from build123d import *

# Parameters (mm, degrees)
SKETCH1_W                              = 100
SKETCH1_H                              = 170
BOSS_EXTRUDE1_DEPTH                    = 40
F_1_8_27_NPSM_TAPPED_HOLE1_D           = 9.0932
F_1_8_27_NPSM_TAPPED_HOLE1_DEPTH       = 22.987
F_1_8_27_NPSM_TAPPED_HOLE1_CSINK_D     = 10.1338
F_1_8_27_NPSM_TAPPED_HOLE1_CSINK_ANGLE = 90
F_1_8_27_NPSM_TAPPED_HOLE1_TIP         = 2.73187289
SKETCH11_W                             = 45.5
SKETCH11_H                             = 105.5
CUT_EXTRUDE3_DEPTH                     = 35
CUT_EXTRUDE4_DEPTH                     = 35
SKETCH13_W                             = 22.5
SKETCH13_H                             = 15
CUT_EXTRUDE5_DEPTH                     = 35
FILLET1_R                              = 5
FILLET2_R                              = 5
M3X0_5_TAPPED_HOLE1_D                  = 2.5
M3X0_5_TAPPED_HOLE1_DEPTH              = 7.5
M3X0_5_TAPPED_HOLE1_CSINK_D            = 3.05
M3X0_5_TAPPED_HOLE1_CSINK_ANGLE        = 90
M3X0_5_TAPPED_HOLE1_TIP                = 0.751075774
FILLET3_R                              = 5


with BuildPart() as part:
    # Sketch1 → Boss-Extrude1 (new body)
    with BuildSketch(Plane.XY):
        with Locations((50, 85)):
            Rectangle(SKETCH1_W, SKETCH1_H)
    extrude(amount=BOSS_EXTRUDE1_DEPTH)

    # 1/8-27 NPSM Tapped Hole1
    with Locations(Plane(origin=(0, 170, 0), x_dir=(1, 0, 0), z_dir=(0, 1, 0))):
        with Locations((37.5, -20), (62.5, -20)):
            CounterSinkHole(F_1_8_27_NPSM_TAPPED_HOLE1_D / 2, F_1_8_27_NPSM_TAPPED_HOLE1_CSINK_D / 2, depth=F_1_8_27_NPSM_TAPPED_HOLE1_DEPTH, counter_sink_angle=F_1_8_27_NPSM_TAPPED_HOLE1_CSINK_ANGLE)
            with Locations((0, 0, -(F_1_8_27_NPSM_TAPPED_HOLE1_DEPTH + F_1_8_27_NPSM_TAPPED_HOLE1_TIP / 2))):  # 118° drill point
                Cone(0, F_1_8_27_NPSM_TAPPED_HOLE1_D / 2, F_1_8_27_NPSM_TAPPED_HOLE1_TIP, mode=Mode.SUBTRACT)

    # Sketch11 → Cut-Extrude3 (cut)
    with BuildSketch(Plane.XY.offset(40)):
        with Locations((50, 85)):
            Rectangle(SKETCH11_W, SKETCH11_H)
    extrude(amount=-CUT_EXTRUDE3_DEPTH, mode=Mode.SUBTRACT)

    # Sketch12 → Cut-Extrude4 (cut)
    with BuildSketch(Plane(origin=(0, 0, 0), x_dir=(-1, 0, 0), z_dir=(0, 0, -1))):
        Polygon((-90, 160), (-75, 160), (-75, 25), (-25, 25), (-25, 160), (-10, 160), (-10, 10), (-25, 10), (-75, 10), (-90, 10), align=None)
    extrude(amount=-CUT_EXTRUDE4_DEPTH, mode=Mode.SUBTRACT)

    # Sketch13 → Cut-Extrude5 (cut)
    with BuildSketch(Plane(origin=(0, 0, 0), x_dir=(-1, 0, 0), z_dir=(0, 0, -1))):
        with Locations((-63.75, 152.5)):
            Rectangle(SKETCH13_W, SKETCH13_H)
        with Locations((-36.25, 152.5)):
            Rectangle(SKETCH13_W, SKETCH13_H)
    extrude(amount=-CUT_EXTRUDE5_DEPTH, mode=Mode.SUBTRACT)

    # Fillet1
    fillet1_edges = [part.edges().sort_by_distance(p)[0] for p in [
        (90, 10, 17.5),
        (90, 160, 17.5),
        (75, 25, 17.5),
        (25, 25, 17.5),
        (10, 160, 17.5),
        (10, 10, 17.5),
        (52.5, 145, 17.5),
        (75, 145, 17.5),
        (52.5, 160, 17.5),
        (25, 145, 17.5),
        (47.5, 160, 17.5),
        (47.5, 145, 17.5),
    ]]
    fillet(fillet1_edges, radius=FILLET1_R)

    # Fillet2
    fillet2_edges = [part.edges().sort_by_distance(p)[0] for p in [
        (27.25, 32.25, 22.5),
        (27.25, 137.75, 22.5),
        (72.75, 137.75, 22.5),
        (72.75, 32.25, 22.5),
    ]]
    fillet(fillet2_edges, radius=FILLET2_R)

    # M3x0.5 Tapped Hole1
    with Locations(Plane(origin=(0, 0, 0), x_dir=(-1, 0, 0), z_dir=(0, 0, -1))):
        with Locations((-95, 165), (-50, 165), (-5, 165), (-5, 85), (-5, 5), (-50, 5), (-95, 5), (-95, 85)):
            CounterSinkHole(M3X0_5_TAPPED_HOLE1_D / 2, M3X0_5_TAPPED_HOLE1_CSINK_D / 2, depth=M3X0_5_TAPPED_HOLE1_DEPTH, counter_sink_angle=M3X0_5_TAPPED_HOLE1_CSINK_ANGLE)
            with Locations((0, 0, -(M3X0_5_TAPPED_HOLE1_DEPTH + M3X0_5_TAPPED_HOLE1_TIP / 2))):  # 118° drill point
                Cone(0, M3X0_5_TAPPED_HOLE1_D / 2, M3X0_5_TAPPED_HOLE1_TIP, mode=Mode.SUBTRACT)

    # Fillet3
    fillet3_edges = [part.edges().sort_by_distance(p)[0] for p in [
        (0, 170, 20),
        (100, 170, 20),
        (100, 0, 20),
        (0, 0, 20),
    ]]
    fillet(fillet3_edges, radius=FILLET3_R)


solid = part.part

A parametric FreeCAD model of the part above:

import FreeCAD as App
import Part
import Sketcher
from FreeCAD import Vector


def edges_at(feature, points):
    """Names of the edges that pass closest to the given points."""
    edges = feature.Shape.Edges
    near = lambda p: min(range(len(edges)), key=lambda i: edges[i].distToShape(Part.Vertex(*p))[0])
    return sorted({f"Edge{near(p) + 1}" for p in points})

doc = App.newDocument("Part")
body = doc.addObject("PartDesign::Body", "Body")

sketch1 = doc.addObject("Sketcher::SketchObject", "Sketch")
body.addObject(sketch1)
sketch1.AttachmentSupport = (doc.XY_Plane, [""])
sketch1.MapMode = "FlatFace"
sketch1.addGeometry([
    Part.LineSegment(Vector(0, 170, 0), Vector(0, 0, 0)),
    Part.LineSegment(Vector(0, 0, 0), Vector(100, 0, 0)),
    Part.LineSegment(Vector(100, 0, 0), Vector(100, 170, 0)),
    Part.LineSegment(Vector(100, 170, 0), Vector(0, 170, 0)),
], False)
sketch1.addConstraint([
    Sketcher.Constraint("Coincident", 0, 2, 1, 1),
    Sketcher.Constraint("Coincident", 1, 2, 2, 1),
    Sketcher.Constraint("Coincident", 2, 2, 3, 1),
    Sketcher.Constraint("Coincident", 3, 2, 0, 1),
    Sketcher.Constraint("Vertical", 0),
    Sketcher.Constraint("Horizontal", 1),
    Sketcher.Constraint("Vertical", 2),
    Sketcher.Constraint("Horizontal", 3),
    Sketcher.Constraint("Coincident", 0, 2, -1, 1),
    Sketcher.Constraint("DistanceX", 1, 1, 1, 2, 100.0),
    Sketcher.Constraint("DistanceY", 0, 2, 0, 1, 170.0),
])
pad1 = doc.addObject("PartDesign::Pad", "Pad")
body.addObject(pad1)
pad1.Profile = sketch1
pad1.Length = 40

sketch2 = doc.addObject("Sketcher::SketchObject", "Sketch001")
body.addObject(sketch2)
sketch2.AttachmentSupport = (doc.XZ_Plane, [""])
sketch2.MapMode = "FlatFace"
sketch2.AttachmentOffset = App.Placement(Vector(0, 0, -170), App.Rotation())
sketch2.addGeometry([
    Part.Circle(Vector(37.5, 20, 0), Vector(0, 0, 1), 4.5466),
    Part.Circle(Vector(62.5, 20, 0), Vector(0, 0, 1), 4.5466),
], False)
sketch2.addConstraint([
    Sketcher.Constraint("Equal", 0, 1),
    Sketcher.Constraint("Horizontal", 0, 3, 1, 3),
    Sketcher.Constraint("DistanceY", -1, 1, 0, 3, 20.0),
    Sketcher.Constraint("DistanceX", 0, 3, 1, 3, 25.0),
    Sketcher.Constraint("Diameter", 0, 9.0932),
    Sketcher.Constraint("DistanceX", -1, 1, 0, 3, 37.5),
])
doc.recompute()
hole = doc.addObject("PartDesign::Hole", "Hole")
body.addObject(hole)
hole.Profile = sketch2
hole.ThreadType = "None"
hole.Diameter = 9.0932
hole.DepthType = "Dimension"
hole.Depth = 22.987
hole.DrillPoint = "Angled"
hole.DrillPointAngle = 118
hole.HoleCutType = "Countersink"
hole.HoleCutDiameter = 10.1338
hole.HoleCutCountersinkAngle = 90
hole.Reversed = True

sketch3 = doc.addObject("Sketcher::SketchObject", "Sketch002")
body.addObject(sketch3)
sketch3.AttachmentSupport = (doc.XY_Plane, [""])
sketch3.MapMode = "FlatFace"
sketch3.AttachmentOffset = App.Placement(Vector(0, 0, 40), App.Rotation())
sketch3.addGeometry([
    Part.LineSegment(Vector(27.25, 137.75, 0), Vector(27.25, 32.25, 0)),
    Part.LineSegment(Vector(27.25, 32.25, 0), Vector(72.75, 32.25, 0)),
    Part.LineSegment(Vector(72.75, 32.25, 0), Vector(72.75, 137.75, 0)),
    Part.LineSegment(Vector(72.75, 137.75, 0), Vector(27.25, 137.75, 0)),
], False)
sketch3.addConstraint([
    Sketcher.Constraint("Coincident", 0, 2, 1, 1),
    Sketcher.Constraint("Coincident", 1, 2, 2, 1),
    Sketcher.Constraint("Coincident", 2, 2, 3, 1),
    Sketcher.Constraint("Coincident", 3, 2, 0, 1),
    Sketcher.Constraint("Vertical", 0),
    Sketcher.Constraint("Horizontal", 1),
    Sketcher.Constraint("Vertical", 2),
    Sketcher.Constraint("Horizontal", 3),
    Sketcher.Constraint("DistanceX", 1, 1, 1, 2, 45.5),
    Sketcher.Constraint("DistanceY", 0, 2, 0, 1, 105.5),
    Sketcher.Constraint("DistanceX", -1, 1, 0, 2, 27.25),
    Sketcher.Constraint("DistanceY", -1, 1, 0, 2, 32.25),
])
pocket1 = doc.addObject("PartDesign::Pocket", "Pocket")
body.addObject(pocket1)
pocket1.Profile = sketch3
pocket1.Length = 35

sketch4 = doc.addObject("Sketcher::SketchObject", "Sketch003")
body.addObject(sketch4)
sketch4.AttachmentSupport = (doc.XY_Plane, [""])
sketch4.MapMode = "FlatFace"
sketch4.addGeometry([
    Part.LineSegment(Vector(75, 160, 0), Vector(90, 160, 0)),
    Part.LineSegment(Vector(90, 160, 0), Vector(90, 10, 0)),
    Part.LineSegment(Vector(90, 10, 0), Vector(10, 10, 0)),
    Part.LineSegment(Vector(10, 10, 0), Vector(10, 160, 0)),
    Part.LineSegment(Vector(10, 160, 0), Vector(25, 160, 0)),
    Part.LineSegment(Vector(25, 160, 0), Vector(25, 25, 0)),
    Part.LineSegment(Vector(25, 25, 0), Vector(75, 25, 0)),
    Part.LineSegment(Vector(75, 25, 0), Vector(75, 160, 0)),
], False)
sketch4.addConstraint([
    Sketcher.Constraint("Coincident", 0, 2, 1, 1),
    Sketcher.Constraint("Coincident", 1, 2, 2, 1),
    Sketcher.Constraint("Coincident", 2, 2, 3, 1),
    Sketcher.Constraint("Coincident", 3, 2, 4, 1),
    Sketcher.Constraint("Coincident", 4, 2, 5, 1),
    Sketcher.Constraint("Coincident", 5, 2, 6, 1),
    Sketcher.Constraint("Coincident", 6, 2, 7, 1),
    Sketcher.Constraint("Coincident", 7, 2, 0, 1),
    Sketcher.Constraint("Horizontal", 0),
    Sketcher.Constraint("Vertical", 1),
    Sketcher.Constraint("Horizontal", 2),
    Sketcher.Constraint("Vertical", 3),
    Sketcher.Constraint("Horizontal", 4),
    Sketcher.Constraint("Vertical", 5),
    Sketcher.Constraint("Horizontal", 6),
    Sketcher.Constraint("Vertical", 7),
    Sketcher.Constraint("Horizontal", 0, 2, 3, 2),
    Sketcher.Constraint("Equal", 0, 4),
    Sketcher.Constraint("DistanceX", 0, 1, 0, 2, 15.0),
    Sketcher.Constraint("DistanceX", 2, 2, 2, 1, 80.0),
    Sketcher.Constraint("DistanceY", 1, 2, 1, 1, 150.0),
    Sketcher.Constraint("DistanceY", 5, 2, 5, 1, 135.0),
    Sketcher.Constraint("DistanceX", -1, 1, 0, 2, 90.0),
    Sketcher.Constraint("DistanceY", -1, 1, 0, 2, 160.0),
])
pocket2 = doc.addObject("PartDesign::Pocket", "Pocket001")
body.addObject(pocket2)
pocket2.Profile = sketch4
pocket2.Length = 35
pocket2.Reversed = True

sketch5 = doc.addObject("Sketcher::SketchObject", "Sketch004")
body.addObject(sketch5)
sketch5.AttachmentSupport = (doc.XY_Plane, [""])
sketch5.MapMode = "FlatFace"
sketch5.addGeometry([
    Part.LineSegment(Vector(75, 160, 0), Vector(75, 145, 0)),
    Part.LineSegment(Vector(75, 145, 0), Vector(52.5, 145, 0)),
    Part.LineSegment(Vector(52.5, 145, 0), Vector(52.5, 160, 0)),
    Part.LineSegment(Vector(52.5, 160, 0), Vector(75, 160, 0)),
    Part.LineSegment(Vector(47.5, 160, 0), Vector(47.5, 145, 0)),
    Part.LineSegment(Vector(47.5, 145, 0), Vector(25, 145, 0)),
    Part.LineSegment(Vector(25, 145, 0), Vector(25, 160, 0)),
    Part.LineSegment(Vector(25, 160, 0), Vector(47.5, 160, 0)),
], False)
sketch5.addConstraint([
    Sketcher.Constraint("Coincident", 0, 2, 1, 1),
    Sketcher.Constraint("Coincident", 1, 2, 2, 1),
    Sketcher.Constraint("Coincident", 2, 2, 3, 1),
    Sketcher.Constraint("Coincident", 3, 2, 0, 1),
    Sketcher.Constraint("Coincident", 4, 2, 5, 1),
    Sketcher.Constraint("Coincident", 5, 2, 6, 1),
    Sketcher.Constraint("Coincident", 6, 2, 7, 1),
    Sketcher.Constraint("Coincident", 7, 2, 4, 1),
    Sketcher.Constraint("Vertical", 0),
    Sketcher.Constraint("Horizontal", 1),
    Sketcher.Constraint("Vertical", 2),
    Sketcher.Constraint("Horizontal", 3),
    Sketcher.Constraint("Vertical", 4),
    Sketcher.Constraint("Horizontal", 5),
    Sketcher.Constraint("Vertical", 6),
    Sketcher.Constraint("Horizontal", 7),
    Sketcher.Constraint("Horizontal", 1, 2, 4, 2),
    Sketcher.Constraint("Horizontal", 3, 2, 6, 2),
    Sketcher.Constraint("Equal", 3, 5),
    Sketcher.Constraint("DistanceY", 0, 2, 0, 1, 15.0),
    Sketcher.Constraint("DistanceX", 1, 2, 1, 1, 22.5),
    Sketcher.Constraint("DistanceX", -1, 1, 0, 2, 75.0),
    Sketcher.Constraint("DistanceY", -1, 1, 0, 2, 145.0),
    Sketcher.Constraint("DistanceX", -1, 1, 5, 2, 25.0),
])
pocket3 = doc.addObject("PartDesign::Pocket", "Pocket002")
body.addObject(pocket3)
pocket3.Profile = sketch5
pocket3.Length = 35
pocket3.Reversed = True
doc.recompute()

fillet = doc.addObject("PartDesign::Fillet", "Fillet")
body.addObject(fillet)
fillet.Base = (pocket3, edges_at(pocket3, [
    (90, 10, 17.5),
    (90, 160, 17.5),
    (75, 25, 17.5),
    (25, 25, 17.5),
    (10, 160, 17.5),
    (10, 10, 17.5),
    (52.5, 145, 17.5),
    (75, 145, 17.5),
    (52.5, 160, 17.5),
    (25, 145, 17.5),
    (47.5, 160, 17.5),
    (47.5, 145, 17.5),
]))
fillet.Radius = 5
doc.recompute()

fillet2 = doc.addObject("PartDesign::Fillet", "Fillet001")
body.addObject(fillet2)
fillet2.Base = (fillet, edges_at(fillet, [
    (27.25, 32.25, 22.5),
    (27.25, 137.75, 22.5),
    (72.75, 137.75, 22.5),
    (72.75, 32.25, 22.5),
]))
fillet2.Radius = 5

sketch6 = doc.addObject("Sketcher::SketchObject", "Sketch005")
body.addObject(sketch6)
sketch6.AttachmentSupport = (doc.XY_Plane, [""])
sketch6.MapMode = "FlatFace"
sketch6.addGeometry([
    Part.Circle(Vector(95, 165, 0), Vector(0, 0, 1), 1.25),
    Part.Circle(Vector(50, 165, 0), Vector(0, 0, 1), 1.25),
    Part.Circle(Vector(5, 165, 0), Vector(0, 0, 1), 1.25),
    Part.Circle(Vector(5, 85, 0), Vector(0, 0, 1), 1.25),
    Part.Circle(Vector(5, 5, 0), Vector(0, 0, 1), 1.25),
    Part.Circle(Vector(50, 5, 0), Vector(0, 0, 1), 1.25),
    Part.Circle(Vector(95, 5, 0), Vector(0, 0, 1), 1.25),
    Part.Circle(Vector(95, 85, 0), Vector(0, 0, 1), 1.25),
], False)
sketch6.addConstraint([
    Sketcher.Constraint("Equal", 0, 1),
    Sketcher.Constraint("Equal", 1, 2),
    Sketcher.Constraint("Equal", 2, 3),
    Sketcher.Constraint("Equal", 3, 4),
    Sketcher.Constraint("Equal", 4, 5),
    Sketcher.Constraint("Equal", 5, 6),
    Sketcher.Constraint("Equal", 6, 7),
    Sketcher.Constraint("Horizontal", 0, 3, 1, 3),
    Sketcher.Constraint("Horizontal", 1, 3, 2, 3),
    Sketcher.Constraint("Horizontal", 4, 3, 5, 3),
    Sketcher.Constraint("Horizontal", 5, 3, 6, 3),
    Sketcher.Constraint("Horizontal", 3, 3, 7, 3),
    Sketcher.Constraint("Vertical", 2, 3, 3, 3),
    Sketcher.Constraint("Vertical", 3, 3, 4, 3),
    Sketcher.Constraint("Vertical", 1, 3, 5, 3),
    Sketcher.Constraint("Vertical", 0, 3, 6, 3),
    Sketcher.Constraint("Vertical", 6, 3, 7, 3),
    Sketcher.Constraint("Diameter", 0, 2.5),
    Sketcher.Constraint("DistanceX", -1, 1, 0, 3, 95.0),
    Sketcher.Constraint("DistanceY", -1, 1, 0, 3, 165.0),
    Sketcher.Constraint("DistanceX", -1, 1, 1, 3, 50.0),
    Sketcher.Constraint("DistanceX", -1, 1, 2, 3, 5.0),
    Sketcher.Constraint("DistanceY", -1, 1, 3, 3, 85.0),
    Sketcher.Constraint("DistanceY", -1, 1, 4, 3, 5.0),
])
doc.recompute()
hole2 = doc.addObject("PartDesign::Hole", "Hole001")
body.addObject(hole2)
hole2.Profile = sketch6
hole2.ThreadType = "None"
hole2.Diameter = 2.5
hole2.DepthType = "Dimension"
hole2.Depth = 7.5
hole2.DrillPoint = "Angled"
hole2.DrillPointAngle = 118
hole2.HoleCutType = "Countersink"
hole2.HoleCutDiameter = 3.05
hole2.HoleCutCountersinkAngle = 90
hole2.Reversed = True
doc.recompute()

fillet3 = doc.addObject("PartDesign::Fillet", "Fillet002")
body.addObject(fillet3)
fillet3.Base = (hole2, edges_at(hole2, [
    (0, 170, 20),
    (100, 170, 20),
    (100, 0, 20),
    (0, 0, 20),
]))
fillet3.Radius = 5

doc.recompute()
